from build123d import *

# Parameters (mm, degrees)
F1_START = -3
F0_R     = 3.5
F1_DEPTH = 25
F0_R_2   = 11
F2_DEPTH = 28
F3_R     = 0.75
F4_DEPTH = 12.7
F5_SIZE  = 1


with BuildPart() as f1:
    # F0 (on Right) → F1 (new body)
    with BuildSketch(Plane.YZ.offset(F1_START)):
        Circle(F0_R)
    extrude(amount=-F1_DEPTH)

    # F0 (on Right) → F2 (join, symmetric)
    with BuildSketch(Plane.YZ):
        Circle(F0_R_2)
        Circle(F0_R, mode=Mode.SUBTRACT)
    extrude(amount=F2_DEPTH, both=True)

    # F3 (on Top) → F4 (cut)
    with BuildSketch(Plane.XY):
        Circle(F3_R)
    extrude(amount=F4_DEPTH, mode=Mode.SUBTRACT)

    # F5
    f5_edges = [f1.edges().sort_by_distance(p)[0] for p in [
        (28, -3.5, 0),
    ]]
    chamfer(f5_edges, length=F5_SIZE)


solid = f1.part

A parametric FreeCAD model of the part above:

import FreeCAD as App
import Part
import Sketcher
from FreeCAD import Vector


def edges_at(feature, points):
    """Names of the edges that pass closest to the given points."""
    edges = feature.Shape.Edges
    near = lambda p: min(range(len(edges)), key=lambda i: edges[i].distToShape(Part.Vertex(*p))[0])
    return sorted({f"Edge{near(p) + 1}" for p in points})

doc = App.newDocument("Part")
params = doc.addObject("Spreadsheet::Sheet", "Params")
for row, (alias, value) in enumerate([
    ("sketch1_diameter", "7 mm"),
    ("pad1_length", "25 mm"),
    ("sketch2_diameter", "22 mm"),
    ("sketch2_diameter2", "7 mm"),
    ("pad2_length", "56 mm"),
    ("sketch3_diameter", "1.5 mm"),
    ("pocket1_length", "12.7 mm"),
    ("chamfer_size", "1 mm"),
], start=1):
    params.set(f"A{row}", alias)
    params.set(f"B{row}", "=" + value)
    params.setAlias(f"B{row}", alias)

body = doc.addObject("PartDesign::Body", "Body")

sketch1 = doc.addObject("Sketcher::SketchObject", "Sketch")
body.addObject(sketch1)
sketch1.AttachmentSupport = (doc.YZ_Plane, [""])
sketch1.MapMode = "FlatFace"
sketch1.AttachmentOffset = App.Placement(Vector(0, 0, -3), App.Rotation())
sketch1.addGeometry(Part.Circle(Vector(0, 0, 0), Vector(0, 0, 1), 3.5), False)
sketch1.addConstraint([
    Sketcher.Constraint("Coincident", 0, 3, -1, 1),
    Sketcher.Constraint("Diameter", 0, 7.0),
])
sketch1.setExpression("Constraints[1]", "Params.sketch1_diameter")
pad1 = doc.addObject("PartDesign::Pad", "Pad")
body.addObject(pad1)
pad1.Profile = sketch1
pad1.setExpression("Length", "Params.pad1_length")
pad1.Reversed = True

sketch2 = doc.addObject("Sketcher::SketchObject", "Sketch001")
body.addObject(sketch2)
sketch2.AttachmentSupport = (doc.YZ_Plane, [""])
sketch2.MapMode = "FlatFace"
sketch2.addGeometry([
    Part.Circle(Vector(0, 0, 0), Vector(0, 0, 1), 11),
    Part.Circle(Vector(0, 0, 0), Vector(0, 0, 1), 3.5),
], False)
sketch2.addConstraint([
    Sketcher.Constraint("Coincident", 0, 3, -1, 1),
    Sketcher.Constraint("Coincident", 1, 3, -1, 1),
    Sketcher.Constraint("Diameter", 0, 22.0),
    Sketcher.Constraint("Diameter", 1, 7.0),
])
sketch2.setExpression("Constraints[2]", "Params.sketch2_diameter")
sketch2.setExpression("Constraints[3]", "Params.sketch2_diameter2")
pad2 = doc.addObject("PartDesign::Pad", "Pad001")
body.addObject(pad2)
pad2.Profile = sketch2
pad2.setExpression("Length", "Params.pad2_length")
pad2.Midplane = True

sketch3 = doc.addObject("Sketcher::SketchObject", "Sketch002")
body.addObject(sketch3)
sketch3.AttachmentSupport = (doc.XY_Plane, [""])
sketch3.MapMode = "FlatFace"
sketch3.addGeometry(Part.Circle(Vector(0, 0, 0), Vector(0, 0, 1), 0.75), False)
sketch3.addConstraint([
    Sketcher.Constraint("Coincident", 0, 3, -1, 1),
    Sketcher.Constraint("Diameter", 0, 1.5),
])
sketch3.setExpression("Constraints[1]", "Params.sketch3_diameter")
pocket1 = doc.addObject("PartDesign::Pocket", "Pocket")
body.addObject(pocket1)
pocket1.Profile = sketch3
pocket1.setExpression("Length", "Params.pocket1_length")
pocket1.Reversed = True
doc.recompute()

chamfer = doc.addObject("PartDesign::Chamfer", "Chamfer")
body.addObject(chamfer)
chamfer.Base = (pocket1, edges_at(pocket1, [(28, -3.5, 0)]))
chamfer.setExpression("Size", "Params.chamfer_size")

doc.recompute()
